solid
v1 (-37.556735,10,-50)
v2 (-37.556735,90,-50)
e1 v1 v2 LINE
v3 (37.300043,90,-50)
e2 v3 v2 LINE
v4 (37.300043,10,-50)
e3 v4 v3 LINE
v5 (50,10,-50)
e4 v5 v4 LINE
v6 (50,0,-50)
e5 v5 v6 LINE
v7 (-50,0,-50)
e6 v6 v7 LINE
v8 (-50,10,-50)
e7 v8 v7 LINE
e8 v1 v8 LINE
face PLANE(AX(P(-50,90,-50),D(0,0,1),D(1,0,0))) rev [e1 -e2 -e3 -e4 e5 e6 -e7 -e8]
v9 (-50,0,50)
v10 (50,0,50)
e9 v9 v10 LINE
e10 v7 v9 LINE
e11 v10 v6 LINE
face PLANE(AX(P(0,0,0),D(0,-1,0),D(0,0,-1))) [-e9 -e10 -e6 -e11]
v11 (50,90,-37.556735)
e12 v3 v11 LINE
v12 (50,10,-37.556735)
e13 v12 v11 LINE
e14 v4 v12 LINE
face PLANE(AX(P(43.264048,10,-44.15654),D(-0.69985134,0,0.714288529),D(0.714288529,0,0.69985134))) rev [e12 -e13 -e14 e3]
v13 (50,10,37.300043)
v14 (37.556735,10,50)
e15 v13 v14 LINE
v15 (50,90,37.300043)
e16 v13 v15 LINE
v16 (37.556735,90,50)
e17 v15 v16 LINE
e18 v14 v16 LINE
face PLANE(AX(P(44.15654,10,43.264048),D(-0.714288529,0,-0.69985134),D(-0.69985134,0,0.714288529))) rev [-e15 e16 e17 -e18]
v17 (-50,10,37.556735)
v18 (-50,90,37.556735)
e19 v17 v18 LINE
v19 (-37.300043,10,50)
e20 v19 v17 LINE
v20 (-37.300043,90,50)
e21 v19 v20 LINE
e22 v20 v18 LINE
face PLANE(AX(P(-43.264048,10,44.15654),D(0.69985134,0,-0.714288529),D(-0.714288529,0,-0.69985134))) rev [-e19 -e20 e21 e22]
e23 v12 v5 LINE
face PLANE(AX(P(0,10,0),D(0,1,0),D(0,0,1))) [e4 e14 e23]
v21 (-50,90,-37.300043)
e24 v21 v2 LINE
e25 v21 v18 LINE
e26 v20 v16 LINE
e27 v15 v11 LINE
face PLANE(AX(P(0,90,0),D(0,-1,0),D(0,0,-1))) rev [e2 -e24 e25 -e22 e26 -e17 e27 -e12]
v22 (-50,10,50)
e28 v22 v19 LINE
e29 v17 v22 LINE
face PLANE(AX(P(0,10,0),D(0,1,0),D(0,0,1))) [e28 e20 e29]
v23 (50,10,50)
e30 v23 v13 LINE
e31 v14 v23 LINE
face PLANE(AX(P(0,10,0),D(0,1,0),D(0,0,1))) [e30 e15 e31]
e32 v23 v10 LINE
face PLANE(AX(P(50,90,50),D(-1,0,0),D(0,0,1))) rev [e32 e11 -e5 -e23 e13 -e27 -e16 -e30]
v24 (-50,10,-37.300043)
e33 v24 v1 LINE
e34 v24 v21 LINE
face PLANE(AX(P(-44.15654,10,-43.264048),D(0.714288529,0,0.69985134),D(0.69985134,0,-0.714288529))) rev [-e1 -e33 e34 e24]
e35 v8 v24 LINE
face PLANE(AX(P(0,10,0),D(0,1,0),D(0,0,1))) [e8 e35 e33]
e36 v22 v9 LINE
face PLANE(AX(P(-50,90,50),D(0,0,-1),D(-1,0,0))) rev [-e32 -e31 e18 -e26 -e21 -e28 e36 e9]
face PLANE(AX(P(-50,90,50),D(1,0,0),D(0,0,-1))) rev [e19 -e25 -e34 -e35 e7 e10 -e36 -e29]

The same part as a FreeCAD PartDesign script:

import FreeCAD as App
import Part
import Sketcher
from FreeCAD import Vector


def add_polygon(sketch, points):
    """Adds a closed chain of lines whose ends are joined by coincident constraints."""
    first, n = sketch.GeometryCount, len(points)
    for a, b in zip(points, points[1:] + points[:1]):
        sketch.addGeometry(Part.LineSegment(App.Vector(*a, 0), App.Vector(*b, 0)), False)
    for i in range(n):
        sketch.addConstraint(Sketcher.Constraint("Coincident", first + i, 2, first + (i + 1) % n, 1))

doc = App.newDocument("Part")
body = doc.addObject("PartDesign::Body", "Body")

# Sketch on XZ plane
sketch1 = body.newObject("Sketcher::SketchObject", "Sketch")
sketch1.AttachmentSupport = (doc.getObject("XZ_Plane"), [""])
sketch1.MapMode = "FlatFace"
add_polygon(sketch1, [(-50, -50), (-50, 50), (50, 50), (50, -50)])  # lines 0-3
sketch1.addConstraint([
    Sketcher.Constraint("Vertical", 0),
    Sketcher.Constraint("Horizontal", 1),
    Sketcher.Constraint("Vertical", 2),
    Sketcher.Constraint("Horizontal", 3),
    Sketcher.Constraint("Symmetric", 0, 2, 2, 2, -1, 1),
    Sketcher.Constraint("Equal", 3, 0),
    Sketcher.Constraint("DistanceX", 1, 1, 1, 2, 100.0),
])
pad1 = body.newObject("PartDesign::Pad", "Pad")
pad1.Profile = sketch1
pad1.Length = 90
pad1.Reversed = True

# Sketch on XZ plane
sketch2 = body.newObject("Sketcher::SketchObject", "Sketch001")
sketch2.AttachmentSupport = (doc.getObject("XZ_Plane"), [""])
sketch2.MapMode = "FlatFace"
sketch2.AttachmentOffset = App.Placement(Vector(0, 0, -90), App.Rotation())
add_polygon(sketch2, [(-50, -50), (-50, -37), (-38, -50)])  # lines 0-2
add_polygon(sketch2, [(-37, 50), (-50, 38), (-50, 50)])  # lines 3-5
add_polygon(sketch2, [(50, 37), (38, 50), (50, 50)])  # lines 6-8
add_polygon(sketch2, [(50, -50), (37, -50), (50, -38)])  # lines 9-11
sketch2.addConstraint([
    Sketcher.Constraint("Vertical", 0),
    Sketcher.Constraint("Horizontal", 2),
    Sketcher.Constraint("Vertical", 4),
    Sketcher.Constraint("Horizontal", 5),
    Sketcher.Constraint("Horizontal", 7),
    Sketcher.Constraint("Vertical", 8),
    Sketcher.Constraint("Horizontal", 9),
    Sketcher.Constraint("Vertical", 11),
    Sketcher.Constraint("Symmetric", 1, 2, 6, 2, -1, 1),
    Sketcher.Constraint("Symmetric", 0, 2, 8, 2, -1, 1),
    Sketcher.Constraint("Symmetric", 5, 2, 9, 2, -1, 1),
    Sketcher.Constraint("Symmetric", 3, 2, 10, 2, -1, 1),
    Sketcher.Constraint("Symmetric", 4, 2, 7, 2, -2),
    Sketcher.Constraint("Perpendicular", 1, 3),
    Sketcher.Constraint("Equal", 9, 0),
    Sketcher.Constraint("DistanceX", 0, 2, -1, 1, 50.0),
    Sketcher.Constraint("DistanceY", 1, 2, -1, 1, 50.0),
    Sketcher.Constraint("Distance", 1, 17.779869),
    Sketcher.Constraint("DistanceX", 2, 2, 2, 1, 12.443265),
])
pocket1 = body.newObject("PartDesign::Pocket", "Pocket")
pocket1.Profile = sketch2
pocket1.Length = 80
pocket1.Reversed = True

doc.recompute()
